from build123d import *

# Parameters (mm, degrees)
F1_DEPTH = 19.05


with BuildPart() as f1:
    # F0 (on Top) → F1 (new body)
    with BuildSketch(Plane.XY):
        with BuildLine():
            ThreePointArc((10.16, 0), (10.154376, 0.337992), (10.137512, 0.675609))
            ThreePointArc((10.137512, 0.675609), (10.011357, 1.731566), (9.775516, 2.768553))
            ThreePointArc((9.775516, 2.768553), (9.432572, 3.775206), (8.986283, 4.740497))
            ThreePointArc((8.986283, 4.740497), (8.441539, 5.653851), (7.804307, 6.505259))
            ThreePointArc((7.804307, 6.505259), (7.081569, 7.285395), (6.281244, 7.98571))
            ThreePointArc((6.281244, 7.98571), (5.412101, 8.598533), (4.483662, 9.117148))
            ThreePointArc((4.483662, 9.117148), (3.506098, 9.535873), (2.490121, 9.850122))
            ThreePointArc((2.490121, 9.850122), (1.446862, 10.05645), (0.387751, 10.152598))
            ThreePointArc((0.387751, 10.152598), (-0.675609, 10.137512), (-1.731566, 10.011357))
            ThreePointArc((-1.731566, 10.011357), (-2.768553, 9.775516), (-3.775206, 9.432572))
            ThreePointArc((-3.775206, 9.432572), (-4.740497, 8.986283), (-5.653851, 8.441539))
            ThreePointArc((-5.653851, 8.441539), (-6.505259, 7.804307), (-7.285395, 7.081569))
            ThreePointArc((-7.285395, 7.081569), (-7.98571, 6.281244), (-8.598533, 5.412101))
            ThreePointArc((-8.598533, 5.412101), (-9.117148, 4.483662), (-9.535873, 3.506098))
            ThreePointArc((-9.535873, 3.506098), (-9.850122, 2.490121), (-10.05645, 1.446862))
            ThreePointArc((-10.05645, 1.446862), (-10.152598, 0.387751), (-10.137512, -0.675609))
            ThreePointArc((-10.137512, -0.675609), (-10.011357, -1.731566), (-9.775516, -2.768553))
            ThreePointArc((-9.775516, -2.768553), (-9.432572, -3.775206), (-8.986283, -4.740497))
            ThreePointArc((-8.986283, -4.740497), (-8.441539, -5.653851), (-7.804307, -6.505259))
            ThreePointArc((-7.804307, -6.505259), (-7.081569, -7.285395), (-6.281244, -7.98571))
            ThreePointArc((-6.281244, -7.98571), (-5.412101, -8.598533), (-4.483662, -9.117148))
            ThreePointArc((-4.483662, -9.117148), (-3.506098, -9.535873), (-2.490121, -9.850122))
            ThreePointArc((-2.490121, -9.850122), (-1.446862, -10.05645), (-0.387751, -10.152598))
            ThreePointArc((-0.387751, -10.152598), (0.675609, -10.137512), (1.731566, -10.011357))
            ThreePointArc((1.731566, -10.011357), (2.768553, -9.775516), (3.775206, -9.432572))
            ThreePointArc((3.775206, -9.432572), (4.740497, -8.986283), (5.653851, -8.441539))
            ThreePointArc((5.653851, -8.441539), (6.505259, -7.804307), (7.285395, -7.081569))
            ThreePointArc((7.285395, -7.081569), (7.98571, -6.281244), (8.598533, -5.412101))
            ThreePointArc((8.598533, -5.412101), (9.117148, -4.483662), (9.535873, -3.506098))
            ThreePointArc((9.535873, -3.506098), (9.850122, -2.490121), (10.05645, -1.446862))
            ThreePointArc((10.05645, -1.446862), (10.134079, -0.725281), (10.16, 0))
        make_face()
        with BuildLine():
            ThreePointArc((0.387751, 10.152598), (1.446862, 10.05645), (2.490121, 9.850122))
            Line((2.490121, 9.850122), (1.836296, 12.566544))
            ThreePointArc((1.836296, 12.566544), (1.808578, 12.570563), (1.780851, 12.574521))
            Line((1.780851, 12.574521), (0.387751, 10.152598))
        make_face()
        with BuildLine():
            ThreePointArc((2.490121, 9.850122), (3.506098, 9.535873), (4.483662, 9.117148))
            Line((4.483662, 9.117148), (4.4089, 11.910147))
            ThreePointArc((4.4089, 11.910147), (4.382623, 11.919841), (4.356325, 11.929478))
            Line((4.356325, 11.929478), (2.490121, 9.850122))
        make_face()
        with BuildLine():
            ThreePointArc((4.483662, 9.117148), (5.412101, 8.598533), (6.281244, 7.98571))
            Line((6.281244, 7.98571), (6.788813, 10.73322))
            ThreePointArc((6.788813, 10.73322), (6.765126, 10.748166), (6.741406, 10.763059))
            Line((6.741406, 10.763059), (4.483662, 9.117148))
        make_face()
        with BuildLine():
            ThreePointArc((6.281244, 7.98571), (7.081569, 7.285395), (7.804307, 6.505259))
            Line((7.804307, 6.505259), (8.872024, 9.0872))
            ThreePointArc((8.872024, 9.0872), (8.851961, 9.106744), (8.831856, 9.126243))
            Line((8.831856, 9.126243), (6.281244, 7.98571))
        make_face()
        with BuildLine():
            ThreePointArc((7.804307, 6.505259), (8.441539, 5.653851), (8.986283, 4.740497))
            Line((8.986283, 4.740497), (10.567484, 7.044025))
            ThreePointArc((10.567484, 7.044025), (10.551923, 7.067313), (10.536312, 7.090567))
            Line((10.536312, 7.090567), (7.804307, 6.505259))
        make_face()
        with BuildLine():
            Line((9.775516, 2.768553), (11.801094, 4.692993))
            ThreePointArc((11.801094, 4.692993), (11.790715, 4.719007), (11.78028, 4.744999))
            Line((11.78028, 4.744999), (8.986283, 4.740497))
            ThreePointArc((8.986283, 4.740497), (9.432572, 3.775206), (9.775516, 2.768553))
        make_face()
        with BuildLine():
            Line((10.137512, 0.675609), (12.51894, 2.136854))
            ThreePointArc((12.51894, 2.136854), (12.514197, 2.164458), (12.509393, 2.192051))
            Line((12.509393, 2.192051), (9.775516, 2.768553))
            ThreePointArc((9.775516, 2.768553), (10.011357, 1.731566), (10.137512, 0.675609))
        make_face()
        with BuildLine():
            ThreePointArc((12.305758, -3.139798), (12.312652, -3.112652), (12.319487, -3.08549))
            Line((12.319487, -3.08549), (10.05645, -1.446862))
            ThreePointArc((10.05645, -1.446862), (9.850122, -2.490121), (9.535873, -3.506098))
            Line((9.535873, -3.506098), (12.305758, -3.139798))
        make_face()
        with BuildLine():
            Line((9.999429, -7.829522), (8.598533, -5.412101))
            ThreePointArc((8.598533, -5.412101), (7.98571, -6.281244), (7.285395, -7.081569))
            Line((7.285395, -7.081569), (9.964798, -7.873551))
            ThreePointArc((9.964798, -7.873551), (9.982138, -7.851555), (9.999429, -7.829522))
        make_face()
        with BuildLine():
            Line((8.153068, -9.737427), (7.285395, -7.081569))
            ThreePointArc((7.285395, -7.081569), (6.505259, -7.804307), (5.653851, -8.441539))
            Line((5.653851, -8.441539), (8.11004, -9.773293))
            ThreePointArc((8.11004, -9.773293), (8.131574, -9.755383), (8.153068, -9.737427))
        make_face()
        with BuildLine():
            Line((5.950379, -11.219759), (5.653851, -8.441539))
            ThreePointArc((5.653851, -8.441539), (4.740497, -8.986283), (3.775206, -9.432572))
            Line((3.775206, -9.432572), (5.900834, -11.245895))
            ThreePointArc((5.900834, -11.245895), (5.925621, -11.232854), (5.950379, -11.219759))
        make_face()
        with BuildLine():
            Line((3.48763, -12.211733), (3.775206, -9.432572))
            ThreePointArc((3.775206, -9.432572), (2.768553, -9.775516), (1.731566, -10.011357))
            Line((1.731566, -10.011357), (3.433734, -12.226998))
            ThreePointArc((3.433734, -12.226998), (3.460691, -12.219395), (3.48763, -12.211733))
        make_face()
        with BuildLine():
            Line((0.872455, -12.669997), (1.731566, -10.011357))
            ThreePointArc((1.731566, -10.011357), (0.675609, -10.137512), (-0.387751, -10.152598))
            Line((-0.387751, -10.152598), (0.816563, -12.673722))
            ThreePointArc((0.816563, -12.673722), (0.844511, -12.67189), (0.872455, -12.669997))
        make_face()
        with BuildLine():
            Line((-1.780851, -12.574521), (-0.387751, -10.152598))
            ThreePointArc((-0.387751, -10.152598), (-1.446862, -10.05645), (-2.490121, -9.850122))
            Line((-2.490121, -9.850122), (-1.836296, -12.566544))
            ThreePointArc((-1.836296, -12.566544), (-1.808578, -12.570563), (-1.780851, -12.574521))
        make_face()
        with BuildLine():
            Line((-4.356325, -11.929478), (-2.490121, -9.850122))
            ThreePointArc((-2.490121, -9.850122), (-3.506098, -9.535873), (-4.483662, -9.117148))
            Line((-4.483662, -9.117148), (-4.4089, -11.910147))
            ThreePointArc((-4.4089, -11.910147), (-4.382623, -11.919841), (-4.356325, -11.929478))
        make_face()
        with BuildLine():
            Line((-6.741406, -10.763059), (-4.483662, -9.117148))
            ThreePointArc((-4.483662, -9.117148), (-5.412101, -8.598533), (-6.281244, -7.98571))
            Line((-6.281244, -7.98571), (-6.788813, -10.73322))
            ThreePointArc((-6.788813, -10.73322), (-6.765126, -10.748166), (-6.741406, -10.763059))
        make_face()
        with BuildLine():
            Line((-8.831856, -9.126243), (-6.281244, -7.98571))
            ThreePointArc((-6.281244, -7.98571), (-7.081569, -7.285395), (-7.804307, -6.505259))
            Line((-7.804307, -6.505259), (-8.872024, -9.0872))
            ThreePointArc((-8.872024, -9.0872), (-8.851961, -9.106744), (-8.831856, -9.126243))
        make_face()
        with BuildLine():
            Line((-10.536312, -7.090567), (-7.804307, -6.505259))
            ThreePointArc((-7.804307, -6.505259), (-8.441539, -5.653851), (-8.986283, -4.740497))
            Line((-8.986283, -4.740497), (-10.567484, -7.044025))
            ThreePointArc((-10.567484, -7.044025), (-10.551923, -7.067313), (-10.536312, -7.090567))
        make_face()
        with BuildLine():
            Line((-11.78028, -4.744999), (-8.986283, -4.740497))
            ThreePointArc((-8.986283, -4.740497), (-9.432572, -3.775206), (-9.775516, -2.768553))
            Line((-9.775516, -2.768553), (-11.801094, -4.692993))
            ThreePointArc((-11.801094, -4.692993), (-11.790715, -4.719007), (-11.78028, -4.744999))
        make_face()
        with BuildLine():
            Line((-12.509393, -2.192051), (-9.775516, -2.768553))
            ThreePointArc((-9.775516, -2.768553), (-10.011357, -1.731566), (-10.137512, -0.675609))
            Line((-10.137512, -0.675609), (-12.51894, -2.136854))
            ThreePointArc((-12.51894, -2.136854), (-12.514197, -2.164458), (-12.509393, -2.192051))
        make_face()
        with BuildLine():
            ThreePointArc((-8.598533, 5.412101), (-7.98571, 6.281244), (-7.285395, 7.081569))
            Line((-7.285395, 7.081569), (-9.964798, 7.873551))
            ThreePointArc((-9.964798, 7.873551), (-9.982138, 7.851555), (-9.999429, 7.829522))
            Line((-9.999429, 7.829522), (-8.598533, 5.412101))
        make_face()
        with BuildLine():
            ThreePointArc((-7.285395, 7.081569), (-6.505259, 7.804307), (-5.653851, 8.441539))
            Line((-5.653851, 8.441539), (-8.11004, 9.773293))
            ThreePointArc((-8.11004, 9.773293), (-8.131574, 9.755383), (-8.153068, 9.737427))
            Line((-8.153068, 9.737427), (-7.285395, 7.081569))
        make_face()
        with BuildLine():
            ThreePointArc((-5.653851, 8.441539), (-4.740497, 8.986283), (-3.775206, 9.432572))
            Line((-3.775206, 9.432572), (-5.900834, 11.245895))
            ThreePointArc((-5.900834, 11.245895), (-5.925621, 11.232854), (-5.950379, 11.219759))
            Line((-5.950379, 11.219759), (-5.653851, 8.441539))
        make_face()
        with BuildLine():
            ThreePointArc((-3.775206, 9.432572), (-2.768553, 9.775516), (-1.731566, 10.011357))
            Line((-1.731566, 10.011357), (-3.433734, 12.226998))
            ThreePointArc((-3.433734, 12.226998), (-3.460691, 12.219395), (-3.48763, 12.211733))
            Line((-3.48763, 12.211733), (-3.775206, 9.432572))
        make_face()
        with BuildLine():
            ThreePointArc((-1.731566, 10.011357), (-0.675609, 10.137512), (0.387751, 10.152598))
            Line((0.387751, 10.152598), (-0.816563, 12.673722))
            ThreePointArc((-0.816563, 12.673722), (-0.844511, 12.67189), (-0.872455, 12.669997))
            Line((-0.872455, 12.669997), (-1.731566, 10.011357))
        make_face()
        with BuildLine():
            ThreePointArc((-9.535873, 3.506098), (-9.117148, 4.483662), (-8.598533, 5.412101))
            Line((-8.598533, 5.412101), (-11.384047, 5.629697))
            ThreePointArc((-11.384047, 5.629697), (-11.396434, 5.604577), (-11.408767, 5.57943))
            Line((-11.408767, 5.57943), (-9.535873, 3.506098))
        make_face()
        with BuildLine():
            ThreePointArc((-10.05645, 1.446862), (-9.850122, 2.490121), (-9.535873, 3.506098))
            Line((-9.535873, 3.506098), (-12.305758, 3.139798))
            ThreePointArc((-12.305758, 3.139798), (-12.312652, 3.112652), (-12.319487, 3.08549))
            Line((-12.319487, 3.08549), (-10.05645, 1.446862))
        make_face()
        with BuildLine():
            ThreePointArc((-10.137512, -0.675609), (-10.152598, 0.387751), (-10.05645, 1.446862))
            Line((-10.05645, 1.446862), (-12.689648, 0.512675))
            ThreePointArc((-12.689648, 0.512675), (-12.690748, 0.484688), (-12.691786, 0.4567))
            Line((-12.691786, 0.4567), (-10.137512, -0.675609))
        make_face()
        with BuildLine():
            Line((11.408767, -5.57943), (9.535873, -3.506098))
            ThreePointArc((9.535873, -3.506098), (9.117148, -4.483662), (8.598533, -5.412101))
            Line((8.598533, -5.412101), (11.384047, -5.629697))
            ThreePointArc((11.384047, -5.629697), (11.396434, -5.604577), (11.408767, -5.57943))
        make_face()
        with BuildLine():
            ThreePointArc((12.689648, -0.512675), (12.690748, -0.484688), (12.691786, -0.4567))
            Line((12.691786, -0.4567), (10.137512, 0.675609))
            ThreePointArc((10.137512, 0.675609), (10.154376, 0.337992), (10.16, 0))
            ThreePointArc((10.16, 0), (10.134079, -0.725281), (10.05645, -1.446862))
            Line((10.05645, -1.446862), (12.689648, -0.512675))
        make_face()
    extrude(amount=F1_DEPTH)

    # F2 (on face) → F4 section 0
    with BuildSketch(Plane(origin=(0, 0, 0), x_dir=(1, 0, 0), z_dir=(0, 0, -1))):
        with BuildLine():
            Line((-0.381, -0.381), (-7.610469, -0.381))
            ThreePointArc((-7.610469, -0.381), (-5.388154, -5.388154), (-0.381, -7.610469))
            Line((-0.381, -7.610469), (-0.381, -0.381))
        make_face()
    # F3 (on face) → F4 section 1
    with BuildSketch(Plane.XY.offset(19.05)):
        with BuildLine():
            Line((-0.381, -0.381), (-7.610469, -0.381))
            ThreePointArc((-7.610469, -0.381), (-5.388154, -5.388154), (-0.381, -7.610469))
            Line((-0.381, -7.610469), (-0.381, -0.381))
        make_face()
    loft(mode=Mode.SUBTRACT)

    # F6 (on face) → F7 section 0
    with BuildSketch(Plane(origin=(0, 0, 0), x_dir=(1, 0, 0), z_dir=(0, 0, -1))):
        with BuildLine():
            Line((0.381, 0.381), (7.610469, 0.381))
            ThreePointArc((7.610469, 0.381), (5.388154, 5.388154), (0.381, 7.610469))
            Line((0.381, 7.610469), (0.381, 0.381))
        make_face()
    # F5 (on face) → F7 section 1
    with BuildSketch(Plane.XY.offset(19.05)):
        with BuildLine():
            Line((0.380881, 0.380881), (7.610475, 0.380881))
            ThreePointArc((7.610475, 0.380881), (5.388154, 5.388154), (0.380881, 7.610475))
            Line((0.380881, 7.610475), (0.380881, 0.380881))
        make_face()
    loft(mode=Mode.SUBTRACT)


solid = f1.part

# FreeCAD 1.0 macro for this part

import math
import FreeCAD as App
import Part
import Sketcher

V = App.Vector
Q = App.Units.Quantity

doc = App.newDocument("Part")
body = doc.addObject("PartDesign::Body", "Body")

# Sketch on XY plane
sketch1 = body.newObject("Sketcher::SketchObject", "Sketch")
sketch1.AttachmentSupport = (doc.getObject("XY_Plane"), [""])
sketch1.MapMode = "FlatFace"
sketch1.addGeometry(Part.LineSegment(V(10.137512, 0.675609, 0), V(12.51894, 2.136854, 0)), False)
sketch1.addGeometry(Part.ArcOfCircle(Part.Circle(V(0.043097, 0.007428, 0), V(0, 0, 1), 12.656268), math.radians(9.686129), math.radians(9.939719)), False)
sketch1.addGeometry(Part.LineSegment(V(12.509393, 2.192051, 0), V(9.775516, 2.768553, 0)), False)
sketch1.addGeometry(Part.LineSegment(V(9.775516, 2.768553, 0), V(11.801094, 4.692993, 0)), False)
sketch1.addGeometry(Part.ArcOfCircle(Part.Circle(V(-0.314272, -0.125688, 0), V(0, 0, 1), 13.038473), math.radians(21.689347), math.radians(21.935504)), False)
sketch1.addGeometry(Part.LineSegment(V(11.78028, 4.744999, 0), V(8.986283, 4.740497, 0)), False)
sketch1.addGeometry(Part.LineSegment(V(8.986283, 4.740497, 0), V(10.567484, 7.044025, 0)), False)
sketch1.addGeometry(Part.ArcOfCircle(Part.Circle(V(-0.227844, -0.152551, 0), V(0, 0, 1), 12.974198), math.radians(33.688931), math.radians(33.936307)), False)
sketch1.addGeometry(Part.LineSegment(V(10.536312, 7.090567, 0), V(7.804307, 6.505259, 0)), False)
sketch1.addGeometry(Part.LineSegment(V(7.804307, 6.505259, 0), V(8.872024, 9.0872, 0)), False)
sketch1.addGeometry(Part.ArcOfCircle(Part.Circle(V(-0.032373, -0.033588, 0), V(0, 0, 1), 12.746649), math.radians(45.687797), math.radians(45.939589)), False)
sketch1.addGeometry(Part.LineSegment(V(8.831856, 9.126243, 0), V(6.281244, 7.98571, 0)), False)
sketch1.addGeometry(Part.LineSegment(V(6.281244, 7.98571, 0), V(6.788813, 10.73322, 0)), False)
sketch1.addGeometry(Part.ArcOfCircle(Part.Circle(V(0.072124, 0.114594, 0), V(0, 0, 1), 12.564598), math.radians(57.685074), math.radians(57.940513)), False)
sketch1.addGeometry(Part.LineSegment(V(6.741406, 10.763059, 0), V(4.483662, 9.117148, 0)), False)
sketch1.addGeometry(Part.LineSegment(V(4.483662, 9.117148, 0), V(4.4089, 11.910147, 0)), False)
sketch1.addGeometry(Part.ArcOfCircle(Part.Circle(V(-0.073895, -0.200661, 0), V(0, 0, 1), 12.913834), math.radians(69.688053), math.radians(69.936585)), False)
sketch1.addGeometry(Part.LineSegment(V(4.356325, 11.929478, 0), V(2.490121, 9.850122, 0)), False)
sketch1.addGeometry(Part.LineSegment(V(2.490121, 9.850122, 0), V(1.836296, 12.566544, 0)), False)
sketch1.addGeometry(Part.ArcOfCircle(Part.Circle(V(-0.00313, -0.021908, 0), V(0, 0, 1), 12.722131), math.radians(81.686767), math.radians(81.939042)), False)
sketch1.addGeometry(Part.LineSegment(V(1.780851, 12.574521, 0), V(0.387751, 10.152598, 0)), False)
sketch1.addGeometry(Part.LineSegment(V(0.387751, 10.152598, 0), V(-0.816563, 12.673722, 0)), False)
sketch1.addGeometry(Part.ArcOfCircle(Part.Circle(V(0.00882, -0.13197, 0), V(0, 0, 1), 12.832264), math.radians(93.687863), math.radians(93.937973)), False)
sketch1.addGeometry(Part.LineSegment(V(-0.872455, 12.669997, 0), V(-1.731566, 10.011357, 0)), False)
sketch1.addGeometry(Part.LineSegment(V(-1.731566, 10.011357, 0), V(-3.433734, 12.226998, 0)), False)
sketch1.addGeometry(Part.ArcOfCircle(Part.Circle(V(0.005564, -0.018878, 0), V(0, 0, 1), 12.71968), math.radians(105.687586), math.radians(105.939911)), False)
sketch1.addGeometry(Part.LineSegment(V(-3.48763, 12.211733, 0), V(-3.775206, 9.432572, 0)), False)
sketch1.addGeometry(Part.LineSegment(V(-3.775206, 9.432572, 0), V(-5.900834, 11.245895, 0)), False)
sketch1.addGeometry(Part.ArcOfCircle(Part.Circle(V(0.045879, -0.087087, 0), V(0, 0, 1), 12.798433), math.radians(117.687177), math.radians(117.937949)), False)
sketch1.addGeometry(Part.LineSegment(V(-5.950379, 11.219759, 0), V(-5.653851, 8.441539, 0)), False)
sketch1.addGeometry(Part.LineSegment(V(-5.653851, 8.441539, 0), V(-8.11004, 9.773293, 0)), False)
sketch1.addGeometry(Part.ArcOfCircle(Part.Circle(V(0.109645, -0.131505, 0), V(0, 0, 1), 12.871218), math.radians(129.688229), math.radians(129.937581)), False)
sketch1.addGeometry(Part.LineSegment(V(-8.153068, 9.737427, 0), V(-7.285395, 7.081569, 0)), False)
sketch1.addGeometry(Part.LineSegment(V(-7.285395, 7.081569, 0), V(-9.964798, 7.873551, 0)), False)
sketch1.addGeometry(Part.ArcOfCircle(Part.Circle(V(0.061936, -0.048609, 0), V(0, 0, 1), 12.778733), math.radians(141.687607), math.radians(141.938768)), False)
sketch1.addGeometry(Part.LineSegment(V(-9.999429, 7.829522, 0), V(-8.598533, 5.412101, 0)), False)
sketch1.addGeometry(Part.LineSegment(V(-8.598533, 5.412101, 0), V(-11.384047, 5.629697, 0)), False)
sketch1.addGeometry(Part.ArcOfCircle(Part.Circle(V(0.263611, -0.12953, 0), V(0, 0, 1), 12.993715), math.radians(153.689741), math.radians(153.936746)), False)
sketch1.addGeometry(Part.LineSegment(V(-11.408767, 5.57943, 0), V(-9.535873, 3.506098, 0)), False)
sketch1.addGeometry(Part.LineSegment(V(-9.535873, 3.506098, 0), V(-12.305758, 3.139798, 0)), False)
sketch1.addGeometry(Part.ArcOfCircle(Part.Circle(V(0.130281, -0.032908, 0), V(0, 0, 1), 12.834373), math.radians(165.687891), math.radians(165.937963)), False)
sketch1.addGeometry(Part.LineSegment(V(-12.319487, 3.08549, 0), V(-10.05645, 1.446862, 0)), False)
sketch1.addGeometry(Part.LineSegment(V(-10.05645, 1.446862, 0), V(-12.689648, 0.512675, 0)), False)
sketch1.addGeometry(Part.ArcOfCircle(Part.Circle(V(-0.046217, 0.001723, 0), V(0, 0, 1), 12.653751), math.radians(177.685796), math.radians(177.939434)), False)
sketch1.addGeometry(Part.LineSegment(V(-12.691786, 0.4567, 0), V(-10.137512, -0.675609, 0)), False)
sketch1.addGeometry(Part.LineSegment(V(-10.137512, -0.675609, 0), V(-12.51894, -2.136854, 0)), False)
sketch1.addGeometry(Part.ArcOfCircle(Part.Circle(V(-0.043097, -0.007428, 0), V(0, 0, 1), 12.656268), math.radians(-170.313871), math.radians(-170.060281)), False)
sketch1.addGeometry(Part.LineSegment(V(-12.509393, -2.192051, 0), V(-9.775516, -2.768553, 0)), False)
sketch1.addGeometry(Part.LineSegment(V(-9.775516, -2.768553, 0), V(-11.801094, -4.692993, 0)), False)
sketch1.addGeometry(Part.ArcOfCircle(Part.Circle(V(0.314272, 0.125688, 0), V(0, 0, 1), 13.038473), math.radians(-158.310653), math.radians(-158.064496)), False)
sketch1.addGeometry(Part.LineSegment(V(-11.78028, -4.744999, 0), V(-8.986283, -4.740497, 0)), False)
sketch1.addGeometry(Part.LineSegment(V(-8.986283, -4.740497, 0), V(-10.567484, -7.044025, 0)), False)
sketch1.addGeometry(Part.ArcOfCircle(Part.Circle(V(0.227844, 0.152551, 0), V(0, 0, 1), 12.974198), math.radians(-146.311069), math.radians(-146.063693)), False)
sketch1.addGeometry(Part.LineSegment(V(-10.536312, -7.090567, 0), V(-7.804307, -6.505259, 0)), False)
sketch1.addGeometry(Part.LineSegment(V(-7.804307, -6.505259, 0), V(-8.872024, -9.0872, 0)), False)
sketch1.addGeometry(Part.ArcOfCircle(Part.Circle(V(0.032373, 0.033588, 0), V(0, 0, 1), 12.746649), math.radians(-134.312203), math.radians(-134.060411)), False)
sketch1.addGeometry(Part.LineSegment(V(-8.831856, -9.126243, 0), V(-6.281244, -7.98571, 0)), False)
sketch1.addGeometry(Part.LineSegment(V(-6.281244, -7.98571, 0), V(-6.788813, -10.73322, 0)), False)
sketch1.addGeometry(Part.ArcOfCircle(Part.Circle(V(-0.072124, -0.114594, 0), V(0, 0, 1), 12.564598), math.radians(-122.314926), math.radians(-122.059487)), False)
sketch1.addGeometry(Part.LineSegment(V(-6.741406, -10.763059, 0), V(-4.483662, -9.117148, 0)), False)
sketch1.addGeometry(Part.LineSegment(V(-4.483662, -9.117148, 0), V(-4.4089, -11.910147, 0)), False)
sketch1.addGeometry(Part.ArcOfCircle(Part.Circle(V(0.073895, 0.200661, 0), V(0, 0, 1), 12.913834), math.radians(-110.311947), math.radians(-110.063415)), False)
sketch1.addGeometry(Part.LineSegment(V(-4.356325, -11.929478, 0), V(-2.490121, -9.850122, 0)), False)
sketch1.addGeometry(Part.LineSegment(V(-2.490121, -9.850122, 0), V(-1.836296, -12.566544, 0)), False)
sketch1.addGeometry(Part.ArcOfCircle(Part.Circle(V(0.00313, 0.021908, 0), V(0, 0, 1), 12.722131), math.radians(-98.313233), math.radians(-98.060958)), False)
sketch1.addGeometry(Part.LineSegment(V(-1.780851, -12.574521, 0), V(-0.387751, -10.152598, 0)), False)
sketch1.addGeometry(Part.LineSegment(V(-0.387751, -10.152598, 0), V(0.816563, -12.673722, 0)), False)
sketch1.addGeometry(Part.ArcOfCircle(Part.Circle(V(-0.00882, 0.13197, 0), V(0, 0, 1), 12.832264), math.radians(-86.312137), math.radians(-86.062027)), False)
sketch1.addGeometry(Part.LineSegment(V(0.872455, -12.669997, 0), V(1.731566, -10.011357, 0)), False)
sketch1.addGeometry(Part.LineSegment(V(1.731566, -10.011357, 0), V(3.433734, -12.226998, 0)), False)
sketch1.addGeometry(Part.ArcOfCircle(Part.Circle(V(-0.005564, 0.018878, 0), V(0, 0, 1), 12.71968), math.radians(-74.312414), math.radians(-74.060089)), False)
sketch1.addGeometry(Part.LineSegment(V(3.48763, -12.211733, 0), V(3.775206, -9.432572, 0)), False)
sketch1.addGeometry(Part.LineSegment(V(3.775206, -9.432572, 0), V(5.900834, -11.245895, 0)), False)
sketch1.addGeometry(Part.ArcOfCircle(Part.Circle(V(-0.045879, 0.087087, 0), V(0, 0, 1), 12.798433), math.radians(-62.312823), math.radians(-62.062051)), False)
sketch1.addGeometry(Part.LineSegment(V(5.950379, -11.219759, 0), V(5.653851, -8.441539, 0)), False)
sketch1.addGeometry(Part.LineSegment(V(5.653851, -8.441539, 0), V(8.11004, -9.773293, 0)), False)
sketch1.addGeometry(Part.ArcOfCircle(Part.Circle(V(-0.109645, 0.131505, 0), V(0, 0, 1), 12.871218), math.radians(-50.311771), math.radians(-50.062419)), False)
sketch1.addGeometry(Part.LineSegment(V(8.153068, -9.737427, 0), V(7.285395, -7.081569, 0)), False)
sketch1.addGeometry(Part.LineSegment(V(7.285395, -7.081569, 0), V(9.964798, -7.873551, 0)), False)
sketch1.addGeometry(Part.ArcOfCircle(Part.Circle(V(-0.061936, 0.048609, 0), V(0, 0, 1), 12.778733), math.radians(-38.312393), math.radians(-38.061232)), False)
sketch1.addGeometry(Part.LineSegment(V(9.999429, -7.829522, 0), V(8.598533, -5.412101, 0)), False)
sketch1.addGeometry(Part.LineSegment(V(8.598533, -5.412101, 0), V(11.384047, -5.629697, 0)), False)
sketch1.addGeometry(Part.ArcOfCircle(Part.Circle(V(-0.263611, 0.12953, 0), V(0, 0, 1), 12.993715), math.radians(-26.310259), math.radians(-26.063254)), False)
sketch1.addGeometry(Part.LineSegment(V(11.408767, -5.57943, 0), V(9.535873, -3.506098, 0)), False)
sketch1.addGeometry(Part.LineSegment(V(9.535873, -3.506098, 0), V(12.305758, -3.139798, 0)), False)
sketch1.addGeometry(Part.ArcOfCircle(Part.Circle(V(-0.130281, 0.032908, 0), V(0, 0, 1), 12.834373), math.radians(-14.312109), math.radians(-14.062037)), False)
sketch1.addGeometry(Part.LineSegment(V(12.319487, -3.08549, 0), V(10.05645, -1.446862, 0)), False)
sketch1.addGeometry(Part.LineSegment(V(10.05645, -1.446862, 0), V(12.689648, -0.512675, 0)), False)
sketch1.addGeometry(Part.ArcOfCircle(Part.Circle(V(0.046217, -0.001723, 0), V(0, 0, 1), 12.653751), math.radians(-2.314204), math.radians(-2.060566)), False)
sketch1.addGeometry(Part.LineSegment(V(12.691786, -0.4567, 0), V(10.137512, 0.675609, 0)), False)
sketch1.addConstraint(Sketcher.Constraint("Coincident", 0, 2, 1, 1))
sketch1.addConstraint(Sketcher.Constraint("Coincident", 1, 2, 2, 1))
sketch1.addConstraint(Sketcher.Constraint("Coincident", 2, 2, 3, 1))
sketch1.addConstraint(Sketcher.Constraint("Coincident", 3, 2, 4, 1))
sketch1.addConstraint(Sketcher.Constraint("Coincident", 4, 2, 5, 1))
sketch1.addConstraint(Sketcher.Constraint("Coincident", 5, 2, 6, 1))
sketch1.addConstraint(Sketcher.Constraint("Coincident", 6, 2, 7, 1))
sketch1.addConstraint(Sketcher.Constraint("Coincident", 7, 2, 8, 1))
sketch1.addConstraint(Sketcher.Constraint("Coincident", 8, 2, 9, 1))
sketch1.addConstraint(Sketcher.Constraint("Coincident", 9, 2, 10, 1))
sketch1.addConstraint(Sketcher.Constraint("Coincident", 10, 2, 11, 1))
sketch1.addConstraint(Sketcher.Constraint("Coincident", 11, 2, 12, 1))
sketch1.addConstraint(Sketcher.Constraint("Coincident", 12, 2, 13, 1))
sketch1.addConstraint(Sketcher.Constraint("Coincident", 13, 2, 14, 1))
sketch1.addConstraint(Sketcher.Constraint("Coincident", 14, 2, 15, 1))
sketch1.addConstraint(Sketcher.Constraint("Coincident", 15, 2, 16, 1))
sketch1.addConstraint(Sketcher.Constraint("Coincident", 16, 2, 17, 1))
sketch1.addConstraint(Sketcher.Constraint("Coincident", 17, 2, 18, 1))
sketch1.addConstraint(Sketcher.Constraint("Coincident", 18, 2, 19, 1))
sketch1.addConstraint(Sketcher.Constraint("Coincident", 19, 2, 20, 1))
sketch1.addConstraint(Sketcher.Constraint("Coincident", 20, 2, 21, 1))
sketch1.addConstraint(Sketcher.Constraint("Coincident", 21, 2, 22, 1))
sketch1.addConstraint(Sketcher.Constraint("Coincident", 22, 2, 23, 1))
sketch1.addConstraint(Sketcher.Constraint("Coincident", 23, 2, 24, 1))
sketch1.addConstraint(Sketcher.Constraint("Coincident", 24, 2, 25, 1))
sketch1.addConstraint(Sketcher.Constraint("Coincident", 25, 2, 26, 1))
sketch1.addConstraint(Sketcher.Constraint("Coincident", 26, 2, 27, 1))
sketch1.addConstraint(Sketcher.Constraint("Coincident", 27, 2, 28, 1))
sketch1.addConstraint(Sketcher.Constraint("Coincident", 28, 2, 29, 1))
sketch1.addConstraint(Sketcher.Constraint("Coincident", 29, 2, 30, 1))
sketch1.addConstraint(Sketcher.Constraint("Coincident", 30, 2, 31, 1))
sketch1.addConstraint(Sketcher.Constraint("Coincident", 31, 2, 32, 1))
sketch1.addConstraint(Sketcher.Constraint("Coincident", 32, 2, 33, 1))
sketch1.addConstraint(Sketcher.Constraint("Coincident", 33, 2, 34, 1))
sketch1.addConstraint(Sketcher.Constraint("Coincident", 34, 2, 35, 1))
sketch1.addConstraint(Sketcher.Constraint("Coincident", 35, 2, 36, 1))
sketch1.addConstraint(Sketcher.Constraint("Coincident", 36, 2, 37, 1))
sketch1.addConstraint(Sketcher.Constraint("Coincident", 37, 2, 38, 1))
sketch1.addConstraint(Sketcher.Constraint("Coincident", 38, 2, 39, 1))
sketch1.addConstraint(Sketcher.Constraint("Coincident", 39, 2, 40, 1))
sketch1.addConstraint(Sketcher.Constraint("Coincident", 40, 2, 41, 1))
sketch1.addConstraint(Sketcher.Constraint("Coincident", 41, 2, 42, 1))
sketch1.addConstraint(Sketcher.Constraint("Coincident", 42, 2, 43, 1))
sketch1.addConstraint(Sketcher.Constraint("Coincident", 43, 2, 44, 1))
sketch1.addConstraint(Sketcher.Constraint("Coincident", 44, 2, 45, 1))
sketch1.addConstraint(Sketcher.Constraint("Coincident", 45, 2, 46, 1))
sketch1.addConstraint(Sketcher.Constraint("Coincident", 46, 2, 47, 1))
sketch1.addConstraint(Sketcher.Constraint("Coincident", 47, 2, 48, 1))
sketch1.addConstraint(Sketcher.Constraint("Coincident", 48, 2, 49, 1))
sketch1.addConstraint(Sketcher.Constraint("Coincident", 49, 2, 50, 1))
sketch1.addConstraint(Sketcher.Constraint("Coincident", 50, 2, 51, 1))
sketch1.addConstraint(Sketcher.Constraint("Coincident", 51, 2, 52, 1))
sketch1.addConstraint(Sketcher.Constraint("Coincident", 52, 2, 53, 1))
sketch1.addConstraint(Sketcher.Constraint("Coincident", 53, 2, 54, 1))
sketch1.addConstraint(Sketcher.Constraint("Coincident", 54, 2, 55, 1))
sketch1.addConstraint(Sketcher.Constraint("Coincident", 55, 2, 56, 1))
sketch1.addConstraint(Sketcher.Constraint("Coincident", 56, 2, 57, 1))
sketch1.addConstraint(Sketcher.Constraint("Coincident", 57, 2, 58, 1))
sketch1.addConstraint(Sketcher.Constraint("Coincident", 58, 2, 59, 1))
sketch1.addConstraint(Sketcher.Constraint("Coincident", 59, 2, 60, 1))
sketch1.addConstraint(Sketcher.Constraint("Coincident", 60, 2, 61, 1))
sketch1.addConstraint(Sketcher.Constraint("Coincident", 61, 2, 62, 1))
sketch1.addConstraint(Sketcher.Constraint("Coincident", 62, 2, 63, 1))
sketch1.addConstraint(Sketcher.Constraint("Coincident", 63, 2, 64, 1))
sketch1.addConstraint(Sketcher.Constraint("Coincident", 64, 2, 65, 1))
sketch1.addConstraint(Sketcher.Constraint("Coincident", 65, 2, 66, 1))
sketch1.addConstraint(Sketcher.Constraint("Coincident", 66, 2, 67, 1))
sketch1.addConstraint(Sketcher.Constraint("Coincident", 67, 2, 68, 1))
sketch1.addConstraint(Sketcher.Constraint("Coincident", 68, 2, 69, 1))
sketch1.addConstraint(Sketcher.Constraint("Coincident", 69, 2, 70, 1))
sketch1.addConstraint(Sketcher.Constraint("Coincident", 70, 2, 71, 1))
sketch1.addConstraint(Sketcher.Constraint("Coincident", 71, 2, 72, 1))
sketch1.addConstraint(Sketcher.Constraint("Coincident", 72, 2, 73, 1))
sketch1.addConstraint(Sketcher.Constraint("Coincident", 73, 2, 74, 1))
sketch1.addConstraint(Sketcher.Constraint("Coincident", 74, 2, 75, 1))
sketch1.addConstraint(Sketcher.Constraint("Coincident", 75, 2, 76, 1))
sketch1.addConstraint(Sketcher.Constraint("Coincident", 76, 2, 77, 1))
sketch1.addConstraint(Sketcher.Constraint("Coincident", 77, 2, 78, 1))
sketch1.addConstraint(Sketcher.Constraint("Coincident", 78, 2, 79, 1))
sketch1.addConstraint(Sketcher.Constraint("Coincident", 79, 2, 80, 1))
sketch1.addConstraint(Sketcher.Constraint("Coincident", 80, 2, 81, 1))
sketch1.addConstraint(Sketcher.Constraint("Coincident", 81, 2, 82, 1))
sketch1.addConstraint(Sketcher.Constraint("Coincident", 82, 2, 83, 1))
sketch1.addConstraint(Sketcher.Constraint("Coincident", 83, 2, 84, 1))
sketch1.addConstraint(Sketcher.Constraint("Coincident", 84, 2, 85, 1))
sketch1.addConstraint(Sketcher.Constraint("Coincident", 85, 2, 86, 1))
sketch1.addConstraint(Sketcher.Constraint("Coincident", 86, 2, 87, 1))
sketch1.addConstraint(Sketcher.Constraint("Coincident", 87, 2, 88, 1))
sketch1.addConstraint(Sketcher.Constraint("Coincident", 88, 2, 89, 1))
sketch1.addConstraint(Sketcher.Constraint("Coincident", 89, 2, 0, 1))
sketch1.addConstraint(Sketcher.Constraint("Equal", 1, 46))
sketch1.addConstraint(Sketcher.Constraint("Equal", 4, 49))
sketch1.addConstraint(Sketcher.Constraint("Equal", 7, 52))
sketch1.addConstraint(Sketcher.Constraint("Equal", 10, 55))
sketch1.addConstraint(Sketcher.Constraint("Equal", 13, 58))
sketch1.addConstraint(Sketcher.Constraint("Equal", 16, 61))
sketch1.addConstraint(Sketcher.Constraint("Equal", 19, 64))
sketch1.addConstraint(Sketcher.Constraint("Equal", 22, 67))
sketch1.addConstraint(Sketcher.Constraint("Equal", 25, 70))
sketch1.addConstraint(Sketcher.Constraint("Equal", 28, 73))
sketch1.addConstraint(Sketcher.Constraint("Equal", 31, 76))
sketch1.addConstraint(Sketcher.Constraint("Equal", 34, 79))
sketch1.addConstraint(Sketcher.Constraint("Equal", 37, 82))
sketch1.addConstraint(Sketcher.Constraint("Equal", 40, 85))
sketch1.addConstraint(Sketcher.Constraint("Equal", 43, 88))
sketch1.addConstraint(Sketcher.Constraint("Symmetric", 1, 3, 46, 3, -1, 1))
sketch1.addConstraint(Sketcher.Constraint("Symmetric", 4, 3, 49, 3, -1, 1))
sketch1.addConstraint(Sketcher.Constraint("Symmetric", 7, 3, 52, 3, -1, 1))
sketch1.addConstraint(Sketcher.Constraint("Symmetric", 10, 3, 55, 3, -1, 1))
sketch1.addConstraint(Sketcher.Constraint("Symmetric", 13, 3, 58, 3, -1, 1))
sketch1.addConstraint(Sketcher.Constraint("Symmetric", 16, 3, 61, 3, -1, 1))
sketch1.addConstraint(Sketcher.Constraint("Symmetric", 19, 3, 64, 3, -1, 1))
sketch1.addConstraint(Sketcher.Constraint("Symmetric", 22, 3, 67, 3, -1, 1))
sketch1.addConstraint(Sketcher.Constraint("Symmetric", 25, 3, 70, 3, -1, 1))
sketch1.addConstraint(Sketcher.Constraint("Symmetric", 28, 3, 73, 3, -1, 1))
sketch1.addConstraint(Sketcher.Constraint("Symmetric", 31, 3, 76, 3, -1, 1))
sketch1.addConstraint(Sketcher.Constraint("Symmetric", 34, 3, 79, 3, -1, 1))
sketch1.addConstraint(Sketcher.Constraint("Symmetric", 37, 3, 82, 3, -1, 1))
sketch1.addConstraint(Sketcher.Constraint("Symmetric", 40, 3, 85, 3, -1, 1))
sketch1.addConstraint(Sketcher.Constraint("Symmetric", 43, 3, 88, 3, -1, 1))
sketch1.addConstraint(Sketcher.Constraint("Symmetric", 2, 2, 47, 2, -1, 1))
sketch1.addConstraint(Sketcher.Constraint("Symmetric", 5, 2, 50, 2, -1, 1))
sketch1.addConstraint(Sketcher.Constraint("Symmetric", 8, 2, 53, 2, -1, 1))
sketch1.addConstraint(Sketcher.Constraint("Symmetric", 11, 2, 56, 2, -1, 1))
sketch1.addConstraint(Sketcher.Constraint("Symmetric", 14, 2, 59, 2, -1, 1))
sketch1.addConstraint(Sketcher.Constraint("Symmetric", 17, 2, 62, 2, -1, 1))
sketch1.addConstraint(Sketcher.Constraint("Symmetric", 20, 2, 65, 2, -1, 1))
sketch1.addConstraint(Sketcher.Constraint("Symmetric", 23, 2, 68, 2, -1, 1))
sketch1.addConstraint(Sketcher.Constraint("Symmetric", 26, 2, 71, 2, -1, 1))
sketch1.addConstraint(Sketcher.Constraint("Symmetric", 29, 2, 74, 2, -1, 1))
sketch1.addConstraint(Sketcher.Constraint("Symmetric", 32, 2, 77, 2, -1, 1))
sketch1.addConstraint(Sketcher.Constraint("Symmetric", 35, 2, 80, 2, -1, 1))
sketch1.addConstraint(Sketcher.Constraint("Symmetric", 38, 2, 83, 2, -1, 1))
sketch1.addConstraint(Sketcher.Constraint("Symmetric", 41, 2, 86, 2, -1, 1))
sketch1.addConstraint(Sketcher.Constraint("Symmetric", 44, 2, 89, 2, -1, 1))
sketch1.addConstraint(Sketcher.Constraint("Parallel", 0, 45))
sketch1.addConstraint(Sketcher.Constraint("Parallel", 2, 47))
sketch1.addConstraint(Sketcher.Constraint("Parallel", 3, 48))
sketch1.addConstraint(Sketcher.Constraint("Parallel", 5, 50))
sketch1.addConstraint(Sketcher.Constraint("Parallel", 6, 51))
sketch1.addConstraint(Sketcher.Constraint("Parallel", 8, 53))
sketch1.addConstraint(Sketcher.Constraint("Parallel", 9, 54))
sketch1.addConstraint(Sketcher.Constraint("Parallel", 11, 56))
sketch1.addConstraint(Sketcher.Constraint("Parallel", 12, 57))
sketch1.addConstraint(Sketcher.Constraint("Parallel", 14, 59))
sketch1.addConstraint(Sketcher.Constraint("Parallel", 15, 60))
sketch1.addConstraint(Sketcher.Constraint("Parallel", 17, 62))
sketch1.addConstraint(Sketcher.Constraint("Parallel", 18, 63))
sketch1.addConstraint(Sketcher.Constraint("Parallel", 20, 65))
sketch1.addConstraint(Sketcher.Constraint("Parallel", 21, 66))
sketch1.addConstraint(Sketcher.Constraint("Parallel", 23, 68))
sketch1.addConstraint(Sketcher.Constraint("Parallel", 24, 69))
sketch1.addConstraint(Sketcher.Constraint("Parallel", 26, 71))
sketch1.addConstraint(Sketcher.Constraint("Parallel", 27, 72))
sketch1.addConstraint(Sketcher.Constraint("Parallel", 29, 74))
sketch1.addConstraint(Sketcher.Constraint("Parallel", 30, 75))
sketch1.addConstraint(Sketcher.Constraint("Parallel", 32, 77))
sketch1.addConstraint(Sketcher.Constraint("Parallel", 33, 78))
sketch1.addConstraint(Sketcher.Constraint("Parallel", 35, 80))
sketch1.addConstraint(Sketcher.Constraint("Parallel", 36, 81))
sketch1.addConstraint(Sketcher.Constraint("Parallel", 38, 83))
sketch1.addConstraint(Sketcher.Constraint("Parallel", 39, 84))
sketch1.addConstraint(Sketcher.Constraint("Parallel", 41, 86))
sketch1.addConstraint(Sketcher.Constraint("Parallel", 42, 87))
sketch1.addConstraint(Sketcher.Constraint("Parallel", 44, 89))
sketch1.addConstraint(Sketcher.Constraint("Equal", 0, 2))
sketch1.addConstraint(Sketcher.Constraint("Equal", 2, 3))
sketch1.addConstraint(Sketcher.Constraint("Equal", 3, 5))
sketch1.addConstraint(Sketcher.Constraint("Equal", 5, 6))
sketch1.addConstraint(Sketcher.Constraint("Equal", 6, 8))
sketch1.addConstraint(Sketcher.Constraint("Equal", 8, 9))
sketch1.addConstraint(Sketcher.Constraint("Equal", 9, 11))
sketch1.addConstraint(Sketcher.Constraint("Equal", 11, 12))
sketch1.addConstraint(Sketcher.Constraint("Equal", 12, 14))
sketch1.addConstraint(Sketcher.Constraint("Equal", 14, 15))
sketch1.addConstraint(Sketcher.Constraint("Equal", 15, 17))
sketch1.addConstraint(Sketcher.Constraint("Equal", 17, 18))
sketch1.addConstraint(Sketcher.Constraint("Equal", 18, 20))
sketch1.addConstraint(Sketcher.Constraint("Equal", 20, 21))
sketch1.addConstraint(Sketcher.Constraint("Equal", 21, 23))
sketch1.addConstraint(Sketcher.Constraint("Equal", 23, 24))
sketch1.addConstraint(Sketcher.Constraint("Equal", 24, 26))
sketch1.addConstraint(Sketcher.Constraint("Equal", 26, 27))
sketch1.addConstraint(Sketcher.Constraint("Equal", 27, 29))
sketch1.addConstraint(Sketcher.Constraint("Equal", 29, 30))
sketch1.addConstraint(Sketcher.Constraint("Equal", 30, 32))
sketch1.addConstraint(Sketcher.Constraint("Equal", 32, 33))
sketch1.addConstraint(Sketcher.Constraint("Equal", 33, 35))
sketch1.addConstraint(Sketcher.Constraint("Equal", 35, 36))
sketch1.addConstraint(Sketcher.Constraint("Equal", 36, 38))
sketch1.addConstraint(Sketcher.Constraint("Equal", 38, 39))
sketch1.addConstraint(Sketcher.Constraint("Equal", 39, 41))
sketch1.addConstraint(Sketcher.Constraint("Equal", 41, 42))
sketch1.addConstraint(Sketcher.Constraint("Equal", 42, 44))
sketch1.addConstraint(Sketcher.Constraint("Distance", 0, Q("0.11 in")))
sketch1.addConstraint(Sketcher.Constraint("Radius", 7, 12.974198))
sketch1.addConstraint(Sketcher.Constraint("Radius", 13, 12.564598))
sketch1.addConstraint(Sketcher.Constraint("Radius", 1, 12.656268))
sketch1.addConstraint(Sketcher.Constraint("Radius", 10, 12.746649))
sketch1.addConstraint(Sketcher.Constraint("Radius", 19, 12.722131))
sketch1.addConstraint(Sketcher.Constraint("Radius", 25, 12.71968))
sketch1.addConstraint(Sketcher.Constraint("Radius", 43, 12.653751))
sketch1.addConstraint(Sketcher.Constraint("DistanceY", 16, 3, -1, 1, Q("0.0079 in")))
sketch1.addConstraint(Sketcher.Constraint("DistanceY", -1, 1, 17, 2, Q("0.3878001 in")))
sketch1.addConstraint(Sketcher.Constraint("Radius", 4, 13.038473))
sketch1.addConstraint(Sketcher.Constraint("Radius", 16, 12.913834))
sketch1.addConstraint(Sketcher.Constraint("Radius", 22, 12.832264))
sketch1.addConstraint(Sketcher.Constraint("Radius", 28, 12.798433))
sketch1.addConstraint(Sketcher.Constraint("Radius", 31, 12.871218))
sketch1.addConstraint(Sketcher.Constraint("Radius", 34, 12.778733))
sketch1.addConstraint(Sketcher.Constraint("Radius", 37, 12.993715))
sketch1.addConstraint(Sketcher.Constraint("Radius", 40, 12.834373))
sketch1.addConstraint(Sketcher.Constraint("DistanceY", -1, 1, 4, 2, 4.744999))
sketch1.addConstraint(Sketcher.Constraint("DistanceY", -1, 1, 9, 2, 9.0872))
sketch1.addConstraint(Sketcher.Constraint("DistanceX", -1, 1, 15, 2, 4.4089))
sketch1.addConstraint(Sketcher.Constraint("DistanceY", -1, 1, 35, 2, 5.412101))
sketch1.addConstraint(Sketcher.Constraint("DistanceY", -1, 1, 38, 2, 3.506098))
sketch1.addConstraint(Sketcher.Constraint("DistanceY", -1, 1, 43, 2, 0.4567))
sketch1.addConstraint(Sketcher.Constraint("DistanceY", 7, 3, -1, 1, 0.152551))
sketch1.addConstraint(Sketcher.Constraint("DistanceX", 19, 3, -1, 1, 0.00313))
sketch1.addConstraint(Sketcher.Constraint("DistanceX", -1, 1, 22, 3, 0.00882))
sketch1.addConstraint(Sketcher.Constraint("DistanceY", 22, 3, -1, 1, 0.13197))
sketch1.addConstraint(Sketcher.Constraint("DistanceY", 25, 3, -1, 1, 0.018878))
sketch1.addConstraint(Sketcher.Constraint("DistanceX", -1, 1, 28, 3, 0.045879))
sketch1.addConstraint(Sketcher.Constraint("DistanceY", 34, 3, -1, 1, 0.048609))
sketch1.addConstraint(Sketcher.Constraint("DistanceX", -1, 1, 37, 3, 0.263611))
sketch1.addConstraint(Sketcher.Constraint("DistanceY", 37, 3, -1, 1, 0.12953))
sketch1.addConstraint(Sketcher.Constraint("DistanceX", -1, 1, 40, 3, 0.130281))
sketch1.addConstraint(Sketcher.Constraint("DistanceX", -1, 1, 0, 2, 12.51894))
sketch1.addConstraint(Sketcher.Constraint("DistanceY", -1, 1, 1, 2, 2.192051))
sketch1.addConstraint(Sketcher.Constraint("DistanceX", -1, 1, 4, 2, 11.78028))
sketch1.addConstraint(Sketcher.Constraint("DistanceY", -1, 1, 8, 2, 6.505259))
sketch1.addConstraint(Sketcher.Constraint("DistanceY", -1, 1, 11, 2, 7.98571))
sketch1.addConstraint(Sketcher.Constraint("DistanceY", -1, 1, 12, 2, 10.73322))
sketch1.addConstraint(Sketcher.Constraint("DistanceY", -1, 1, 13, 2, 10.763059))
sketch1.addConstraint(Sketcher.Constraint("DistanceX", -1, 1, 14, 2, 4.483662))
sketch1.addConstraint(Sketcher.Constraint("DistanceX", -1, 1, 17, 2, 2.490121))
sketch1.addConstraint(Sketcher.Constraint("DistanceX", -1, 1, 19, 2, 1.780851))
sketch1.addConstraint(Sketcher.Constraint("DistanceY", -1, 1, 19, 2, 12.574521))
sketch1.addConstraint(Sketcher.Constraint("DistanceX", -1, 1, 20, 2, 0.387751))
sketch1.addConstraint(Sketcher.Constraint("DistanceX", 25, 2, -1, 1, 3.48763))
sketch1.addConstraint(Sketcher.Constraint("DistanceX", 28, 2, -1, 1, 5.950379))
sketch1.addConstraint(Sketcher.Constraint("DistanceY", -1, 1, 28, 2, 11.219759))
sketch1.addConstraint(Sketcher.Constraint("DistanceX", 29, 2, -1, 1, 5.653851))
sketch1.addConstraint(Sketcher.Constraint("DistanceX", 30, 2, -1, 1, 8.11004))
sketch1.addConstraint(Sketcher.Constraint("DistanceY", -1, 1, 32, 2, 7.081569))
sketch1.addConstraint(Sketcher.Constraint("DistanceY", -1, 1, 33, 2, 7.873551))
sketch1.addConstraint(Sketcher.Constraint("DistanceX", 34, 2, -1, 1, 9.999429))
sketch1.addConstraint(Sketcher.Constraint("DistanceY", -1, 1, 34, 2, 7.829522))
sketch1.addConstraint(Sketcher.Constraint("DistanceY", -1, 1, 37, 2, 5.57943))
sketch1.addConstraint(Sketcher.Constraint("DistanceX", 39, 2, -1, 1, 12.305758))
sketch1.addConstraint(Sketcher.Constraint("DistanceY", -1, 1, 40, 2, 3.08549))
sketch1.addConstraint(Sketcher.Constraint("DistanceX", 41, 2, -1, 1, 10.05645))
sketch1.addConstraint(Sketcher.Constraint("DistanceX", 44, 2, -1, 1, 10.137512))
sketch1.addConstraint(Sketcher.Constraint("DistanceY", 44, 2, -1, 1, 0.675609))
sketch1.addConstraint(Sketcher.Constraint("DistanceX", -1, 1, 1, 3, 0.043097))
sketch1.addConstraint(Sketcher.Constraint("DistanceX", 4, 3, -1, 1, 0.314272))
sketch1.addConstraint(Sketcher.Constraint("DistanceX", 7, 3, -1, 1, 0.227844))
sketch1.addConstraint(Sketcher.Constraint("DistanceX", 10, 3, -1, 1, 0.032373))
sketch1.addConstraint(Sketcher.Constraint("DistanceY", 10, 3, -1, 1, 0.033588))
sketch1.addConstraint(Sketcher.Constraint("DistanceX", -1, 1, 13, 3, 0.072124))
sketch1.addConstraint(Sketcher.Constraint("DistanceY", -1, 1, 13, 3, 0.114594))
sketch1.addConstraint(Sketcher.Constraint("DistanceX", -1, 1, 25, 3, 0.005564))
sketch1.addConstraint(Sketcher.Constraint("DistanceX", -1, 1, 31, 3, 0.109645))
sketch1.addConstraint(Sketcher.Constraint("DistanceX", 43, 3, -1, 1, 0.046217))
sketch1.addConstraint(Sketcher.Constraint("DistanceX", -1, 1, 2, 2, 9.775516))
sketch1.addConstraint(Sketcher.Constraint("DistanceY", -1, 1, 5, 2, 4.740497))
sketch1.addConstraint(Sketcher.Constraint("DistanceX", 22, 2, -1, 1, 0.872455))
sketch1.addConstraint(Sketcher.Constraint("DistanceX", 23, 2, -1, 1, 1.731566))
sketch1.addConstraint(Sketcher.Constraint("DistanceX", 26, 2, -1, 1, 3.775206))
pad1 = body.newObject("PartDesign::Pad", "Pad")
pad1.Profile = sketch1
pad1.Length = Q("0.75 in")

# Sketch on XY plane
sketch2 = body.newObject("Sketcher::SketchObject", "Sketch001")
sketch2.AttachmentSupport = (doc.getObject("XY_Plane"), [""])
sketch2.MapMode = "FlatFace"
sketch2.addGeometry(Part.LineSegment(V(-0.381, 0.381, 0), V(-7.610469, 0.381, 0)), False)
sketch2.addGeometry(Part.ArcOfCircle(Part.Circle(V(-0.000001, 0.000001, 0), V(0, 0, 1), 7.619999), math.radians(92.865974), math.radians(177.134026)), False)
sketch2.addGeometry(Part.LineSegment(V(-0.381, 7.610469, 0), V(-0.381, 0.381, 0)), False)
sketch2.addConstraint(Sketcher.Constraint("Coincident", 0, 2, 1, 2))
sketch2.addConstraint(Sketcher.Constraint("Coincident", 1, 1, 2, 1))
sketch2.addConstraint(Sketcher.Constraint("Coincident", 2, 2, 0, 1))
sketch2.addConstraint(Sketcher.Constraint("Horizontal", 0))
sketch2.addConstraint(Sketcher.Constraint("Vertical", 2))
sketch2.addConstraint(Sketcher.Constraint("Coincident", 1, 3, -1, 1))
sketch2.addConstraint(Sketcher.Constraint("Equal", 0, 2))
sketch2.addConstraint(Sketcher.Constraint("Radius", 1, Q("0.2999999 in")))
sketch2.addConstraint(Sketcher.Constraint("DistanceY", -1, 1, 0, 2, Q("0.015 in")))

# Sketch on XY plane
sketch3 = body.newObject("Sketcher::SketchObject", "Sketch002")
sketch3.AttachmentSupport = (doc.getObject("XY_Plane"), [""])
sketch3.MapMode = "FlatFace"
sketch3.AttachmentOffset = App.Placement(V(0, 0, 0.75 * 25.4), App.Rotation())
sketch3.addGeometry(Part.LineSegment(V(-0.381, -0.381, 0), V(-7.610469, -0.381, 0)), False)
sketch3.addGeometry(Part.ArcOfCircle(Part.Circle(V(-0.000001, -0.000001, 0), V(0, 0, 1), 7.619999), math.radians(-177.134026), math.radians(-92.865974)), False)
sketch3.addGeometry(Part.LineSegment(V(-0.381, -7.610469, 0), V(-0.381, -0.381, 0)), False)
sketch3.addConstraint(Sketcher.Constraint("Coincident", 0, 2, 1, 1))
sketch3.addConstraint(Sketcher.Constraint("Coincident", 1, 2, 2, 1))
sketch3.addConstraint(Sketcher.Constraint("Coincident", 2, 2, 0, 1))
sketch3.addConstraint(Sketcher.Constraint("Horizontal", 0))
sketch3.addConstraint(Sketcher.Constraint("Vertical", 2))
sketch3.addConstraint(Sketcher.Constraint("Coincident", 1, 3, -1, 1))
sketch3.addConstraint(Sketcher.Constraint("Equal", 0, 2))
sketch3.addConstraint(Sketcher.Constraint("Radius", 1, Q("0.2999999 in")))
sketch3.addConstraint(Sketcher.Constraint("DistanceY", 0, 2, -1, 1, Q("0.015 in")))

subtractiveloft = body.newObject("PartDesign::SubtractiveLoft", "SubtractiveLoft")
subtractiveloft.Profile = sketch2
subtractiveloft.Sections = [sketch3]

# Sketch on XY plane
sketch4 = body.newObject("Sketcher::SketchObject", "Sketch003")
sketch4.AttachmentSupport = (doc.getObject("XY_Plane"), [""])
sketch4.MapMode = "FlatFace"
sketch4.addGeometry(Part.LineSegment(V(0.381, -0.381, 0), V(7.610469, -0.381, 0)), False)
sketch4.addGeometry(Part.ArcOfCircle(Part.Circle(V(0.000001, -0.000001, 0), V(0, 0, 1), 7.619999), math.radians(-87.134026), math.radians(-2.865974)), False)
sketch4.addGeometry(Part.LineSegment(V(0.381, -7.610469, 0), V(0.381, -0.381, 0)), False)
sketch4.addConstraint(Sketcher.Constraint("Coincident", 0, 2, 1, 2))
sketch4.addConstraint(Sketcher.Constraint("Coincident", 1, 1, 2, 1))
sketch4.addConstraint(Sketcher.Constraint("Coincident", 2, 2, 0, 1))
sketch4.addConstraint(Sketcher.Constraint("Horizontal", 0))
sketch4.addConstraint(Sketcher.Constraint("Vertical", 2))
sketch4.addConstraint(Sketcher.Constraint("Coincident", 1, 3, -1, 1))
sketch4.addConstraint(Sketcher.Constraint("Equal", 0, 2))
sketch4.addConstraint(Sketcher.Constraint("Radius", 1, Q("0.2999999 in")))
sketch4.addConstraint(Sketcher.Constraint("DistanceY", 0, 2, -1, 1, Q("0.015 in")))

# Sketch on XY plane
sketch5 = body.newObject("Sketcher::SketchObject", "Sketch004")
sketch5.AttachmentSupport = (doc.getObject("XY_Plane"), [""])
sketch5.MapMode = "FlatFace"
sketch5.AttachmentOffset = App.Placement(V(0, 0, 0.75 * 25.4), App.Rotation())
sketch5.addGeometry(Part.LineSegment(V(0.380881, 0.380881, 0), V(7.610475, 0.380881, 0)), False)
sketch5.addGeometry(Part.ArcOfCircle(Part.Circle(V(0.000001, 0.000001, 0), V(0, 0, 1), 7.619999), math.radians(2.865079), math.radians(87.134921)), False)
sketch5.addGeometry(Part.LineSegment(V(0.380881, 7.610475, 0), V(0.380881, 0.380881, 0)), False)
sketch5.addConstraint(Sketcher.Constraint("Coincident", 0, 2, 1, 1))
sketch5.addConstraint(Sketcher.Constraint("Coincident", 1, 2, 2, 1))
sketch5.addConstraint(Sketcher.Constraint("Coincident", 2, 2, 0, 1))
sketch5.addConstraint(Sketcher.Constraint("Horizontal", 0))
sketch5.addConstraint(Sketcher.Constraint("Vertical", 2))
sketch5.addConstraint(Sketcher.Constraint("Coincident", 1, 3, -1, 1))
sketch5.addConstraint(Sketcher.Constraint("Equal", 0, 2))
sketch5.addConstraint(Sketcher.Constraint("Radius", 1, Q("0.2999999 in")))
sketch5.addConstraint(Sketcher.Constraint("DistanceX", 0, 1, 0, 2, 7.229594))

subtractiveloft2 = body.newObject("PartDesign::SubtractiveLoft", "SubtractiveLoft001")
subtractiveloft2.Profile = sketch4
subtractiveloft2.Sections = [sketch5]

doc.recompute()
